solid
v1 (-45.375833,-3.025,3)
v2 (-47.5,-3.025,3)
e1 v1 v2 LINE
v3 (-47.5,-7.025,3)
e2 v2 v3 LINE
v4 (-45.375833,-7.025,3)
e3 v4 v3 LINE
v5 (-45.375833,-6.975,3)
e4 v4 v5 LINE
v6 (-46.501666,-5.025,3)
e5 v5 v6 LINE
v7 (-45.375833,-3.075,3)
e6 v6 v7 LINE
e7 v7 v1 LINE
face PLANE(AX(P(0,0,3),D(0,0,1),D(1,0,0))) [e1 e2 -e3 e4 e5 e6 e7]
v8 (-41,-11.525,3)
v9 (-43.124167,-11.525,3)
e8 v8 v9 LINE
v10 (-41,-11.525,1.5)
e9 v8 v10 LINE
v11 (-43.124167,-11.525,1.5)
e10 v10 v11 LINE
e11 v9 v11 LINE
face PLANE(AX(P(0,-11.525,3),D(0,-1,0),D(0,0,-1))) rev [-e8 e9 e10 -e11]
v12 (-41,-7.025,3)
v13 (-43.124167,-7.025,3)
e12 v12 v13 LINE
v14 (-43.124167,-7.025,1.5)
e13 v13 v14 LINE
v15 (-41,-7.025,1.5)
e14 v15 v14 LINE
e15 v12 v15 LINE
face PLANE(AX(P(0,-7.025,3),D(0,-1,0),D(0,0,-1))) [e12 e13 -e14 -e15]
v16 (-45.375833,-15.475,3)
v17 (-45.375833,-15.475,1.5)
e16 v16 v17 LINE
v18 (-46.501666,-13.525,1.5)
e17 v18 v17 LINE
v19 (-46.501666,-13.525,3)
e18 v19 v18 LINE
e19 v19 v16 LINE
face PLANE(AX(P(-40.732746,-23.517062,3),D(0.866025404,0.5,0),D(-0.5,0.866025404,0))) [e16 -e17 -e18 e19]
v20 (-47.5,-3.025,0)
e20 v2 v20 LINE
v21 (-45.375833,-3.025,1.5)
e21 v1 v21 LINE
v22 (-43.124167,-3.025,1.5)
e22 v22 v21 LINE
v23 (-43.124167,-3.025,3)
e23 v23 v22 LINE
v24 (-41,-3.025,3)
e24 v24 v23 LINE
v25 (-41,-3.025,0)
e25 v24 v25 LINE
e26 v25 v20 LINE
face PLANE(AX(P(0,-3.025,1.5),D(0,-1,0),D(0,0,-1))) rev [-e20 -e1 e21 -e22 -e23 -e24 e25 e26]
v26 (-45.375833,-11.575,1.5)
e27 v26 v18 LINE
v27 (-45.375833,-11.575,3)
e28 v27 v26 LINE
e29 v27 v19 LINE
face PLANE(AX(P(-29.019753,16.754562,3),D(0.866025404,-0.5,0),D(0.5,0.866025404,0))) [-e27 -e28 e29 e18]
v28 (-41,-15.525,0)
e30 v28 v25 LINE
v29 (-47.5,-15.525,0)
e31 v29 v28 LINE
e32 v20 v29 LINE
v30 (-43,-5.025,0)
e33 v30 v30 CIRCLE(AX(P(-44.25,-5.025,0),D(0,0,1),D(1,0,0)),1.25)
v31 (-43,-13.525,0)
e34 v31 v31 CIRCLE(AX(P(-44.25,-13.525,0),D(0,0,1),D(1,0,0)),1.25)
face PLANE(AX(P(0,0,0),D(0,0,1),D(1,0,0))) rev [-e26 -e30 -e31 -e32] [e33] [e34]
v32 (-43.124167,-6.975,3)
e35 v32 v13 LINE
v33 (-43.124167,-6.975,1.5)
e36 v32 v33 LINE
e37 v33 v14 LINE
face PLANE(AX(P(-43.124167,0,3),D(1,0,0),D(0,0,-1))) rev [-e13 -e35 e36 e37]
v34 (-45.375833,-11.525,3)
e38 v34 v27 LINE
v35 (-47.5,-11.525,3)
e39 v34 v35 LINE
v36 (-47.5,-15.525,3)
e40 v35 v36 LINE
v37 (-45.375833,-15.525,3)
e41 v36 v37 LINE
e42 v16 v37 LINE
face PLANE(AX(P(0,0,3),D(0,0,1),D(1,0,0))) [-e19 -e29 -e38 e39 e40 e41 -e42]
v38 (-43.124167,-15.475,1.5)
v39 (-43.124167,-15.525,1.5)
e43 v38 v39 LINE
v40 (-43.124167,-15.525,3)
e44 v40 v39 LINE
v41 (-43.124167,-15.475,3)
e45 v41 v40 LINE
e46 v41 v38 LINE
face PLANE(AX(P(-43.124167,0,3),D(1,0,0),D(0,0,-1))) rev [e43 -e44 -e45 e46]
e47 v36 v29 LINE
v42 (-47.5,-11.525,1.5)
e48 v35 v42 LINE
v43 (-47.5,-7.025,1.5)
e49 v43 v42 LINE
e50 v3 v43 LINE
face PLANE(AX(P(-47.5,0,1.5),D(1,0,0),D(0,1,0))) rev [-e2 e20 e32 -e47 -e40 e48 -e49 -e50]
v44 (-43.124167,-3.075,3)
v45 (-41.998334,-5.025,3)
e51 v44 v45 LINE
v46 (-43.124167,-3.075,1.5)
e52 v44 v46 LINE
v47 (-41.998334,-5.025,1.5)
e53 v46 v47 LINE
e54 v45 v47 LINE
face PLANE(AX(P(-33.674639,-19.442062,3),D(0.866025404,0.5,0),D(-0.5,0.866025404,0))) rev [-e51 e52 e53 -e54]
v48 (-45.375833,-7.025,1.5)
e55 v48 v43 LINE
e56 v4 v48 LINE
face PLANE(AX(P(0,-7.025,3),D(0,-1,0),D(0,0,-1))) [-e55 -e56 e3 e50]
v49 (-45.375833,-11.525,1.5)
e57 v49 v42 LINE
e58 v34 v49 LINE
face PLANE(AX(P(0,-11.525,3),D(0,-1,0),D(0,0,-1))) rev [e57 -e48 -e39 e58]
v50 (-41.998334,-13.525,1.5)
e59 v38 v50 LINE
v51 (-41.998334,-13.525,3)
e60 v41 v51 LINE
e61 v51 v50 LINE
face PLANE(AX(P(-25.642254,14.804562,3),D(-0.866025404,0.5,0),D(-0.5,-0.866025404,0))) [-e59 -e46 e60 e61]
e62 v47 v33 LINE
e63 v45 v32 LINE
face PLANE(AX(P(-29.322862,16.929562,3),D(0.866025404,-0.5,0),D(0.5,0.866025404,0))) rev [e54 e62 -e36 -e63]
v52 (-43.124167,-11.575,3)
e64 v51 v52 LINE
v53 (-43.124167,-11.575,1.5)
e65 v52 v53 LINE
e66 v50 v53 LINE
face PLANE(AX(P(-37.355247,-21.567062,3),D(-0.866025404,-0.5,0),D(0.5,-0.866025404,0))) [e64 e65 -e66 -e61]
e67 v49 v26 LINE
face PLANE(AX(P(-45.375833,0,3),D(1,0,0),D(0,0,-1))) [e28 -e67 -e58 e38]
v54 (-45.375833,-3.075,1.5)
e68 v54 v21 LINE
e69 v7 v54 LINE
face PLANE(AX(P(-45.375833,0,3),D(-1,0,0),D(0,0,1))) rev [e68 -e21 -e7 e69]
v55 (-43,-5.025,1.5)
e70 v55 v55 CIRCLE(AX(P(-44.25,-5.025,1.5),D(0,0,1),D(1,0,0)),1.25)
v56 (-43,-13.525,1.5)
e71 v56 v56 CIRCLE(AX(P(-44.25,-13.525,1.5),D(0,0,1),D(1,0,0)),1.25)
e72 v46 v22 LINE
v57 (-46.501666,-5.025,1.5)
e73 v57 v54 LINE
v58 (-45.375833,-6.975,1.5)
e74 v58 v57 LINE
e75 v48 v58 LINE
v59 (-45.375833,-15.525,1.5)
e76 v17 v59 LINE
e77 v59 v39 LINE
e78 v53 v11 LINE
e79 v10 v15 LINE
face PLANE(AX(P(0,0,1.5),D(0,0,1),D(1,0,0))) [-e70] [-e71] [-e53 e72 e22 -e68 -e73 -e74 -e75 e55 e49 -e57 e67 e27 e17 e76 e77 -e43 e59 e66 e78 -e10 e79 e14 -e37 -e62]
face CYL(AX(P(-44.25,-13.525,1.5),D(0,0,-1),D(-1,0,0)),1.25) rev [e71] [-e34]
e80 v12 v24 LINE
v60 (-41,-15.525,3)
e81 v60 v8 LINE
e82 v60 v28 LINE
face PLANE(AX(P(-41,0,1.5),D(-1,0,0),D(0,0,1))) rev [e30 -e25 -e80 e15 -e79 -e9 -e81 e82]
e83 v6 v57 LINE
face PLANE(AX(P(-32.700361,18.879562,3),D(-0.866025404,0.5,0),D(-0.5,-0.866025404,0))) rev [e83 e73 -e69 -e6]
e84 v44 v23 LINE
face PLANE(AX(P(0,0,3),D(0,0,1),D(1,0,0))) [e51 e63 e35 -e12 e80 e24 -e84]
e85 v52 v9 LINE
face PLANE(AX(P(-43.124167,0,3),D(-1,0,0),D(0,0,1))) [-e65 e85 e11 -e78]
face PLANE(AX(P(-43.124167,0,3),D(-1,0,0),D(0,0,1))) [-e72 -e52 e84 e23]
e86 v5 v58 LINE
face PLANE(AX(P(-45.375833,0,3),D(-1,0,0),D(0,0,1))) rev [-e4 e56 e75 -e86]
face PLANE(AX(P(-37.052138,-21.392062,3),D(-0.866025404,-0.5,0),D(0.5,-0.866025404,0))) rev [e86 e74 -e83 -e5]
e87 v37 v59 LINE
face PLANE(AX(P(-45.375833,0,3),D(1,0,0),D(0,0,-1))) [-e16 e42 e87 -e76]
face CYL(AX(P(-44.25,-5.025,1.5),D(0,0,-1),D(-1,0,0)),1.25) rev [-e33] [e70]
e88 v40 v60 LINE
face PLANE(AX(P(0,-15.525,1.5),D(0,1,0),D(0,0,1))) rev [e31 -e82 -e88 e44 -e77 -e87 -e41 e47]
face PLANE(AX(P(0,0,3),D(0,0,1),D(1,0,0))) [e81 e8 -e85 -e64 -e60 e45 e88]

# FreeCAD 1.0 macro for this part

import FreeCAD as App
import Part
import Sketcher
from FreeCAD import Vector
Q = App.Units.Quantity


def add_polygon(sketch, points):
    """Adds a closed chain of lines whose ends are joined by coincident constraints."""
    first, n = sketch.GeometryCount, len(points)
    for a, b in zip(points, points[1:] + points[:1]):
        sketch.addGeometry(Part.LineSegment(App.Vector(*a, 0), App.Vector(*b, 0)), False)
    for i in range(n):
        sketch.addConstraint(Sketcher.Constraint("Coincident", first + i, 2, first + (i + 1) % n, 1))

doc = App.newDocument("Part")
body = doc.addObject("PartDesign::Body", "Body")

sketch1 = body.newObject("Sketcher::SketchObject", "Sketch")
sketch1.AttachmentSupport = (doc.getObject("XY_Plane"), [""])
sketch1.MapMode = "FlatFace"
add_polygon(sketch1, [(-47.5, -15.5), (-41, -15.5), (-41, -3), (-47.5, -3)])
sketch1.addGeometry(Part.Circle(Vector(-44.2, -13.5, 0), Vector(0, 0, 1), 1.2), False)
sketch1.addGeometry(Part.Circle(Vector(-44.2, -5, 0), Vector(0, 0, 1), 1.2), False)
sketch1.addConstraint([
    Sketcher.Constraint("Horizontal", 0),
    Sketcher.Constraint("Vertical", 1),
    Sketcher.Constraint("Horizontal", 2),
    Sketcher.Constraint("Vertical", 3),
    Sketcher.Constraint("Equal", 4, 5),
    Sketcher.Constraint("Vertical", 4, 3, 5, 3),
    Sketcher.Constraint("Diameter", 4, 2.5),
    Sketcher.Constraint("DistanceX", 0, 1, 0, 2, 6.5),
    Sketcher.Constraint("DistanceY", 1, 1, 1, 2, 12.5),
    Sketcher.Constraint("DistanceX", 0, 2, -1, 1, 41.0),
    Sketcher.Constraint("DistanceY", 0, 2, 4, 3, 2.0),
    Sketcher.Constraint("DistanceY", 5, 3, 1, 2, 2.0),
    Sketcher.Constraint("DistanceX", 4, 3, -1, 1, 44.25),
    Sketcher.Constraint("DistanceY", 4, 3, -1, 1, 13.525),
])
pad1 = body.newObject("PartDesign::Pad", "Pad")
pad1.Profile = sketch1
pad1.Length = 1.5

sketch2 = body.newObject("Sketcher::SketchObject", "Sketch001")
sketch2.AttachmentSupport = (doc.getObject("XY_Plane"), [""])
sketch2.MapMode = "FlatFace"
sketch2.AttachmentOffset = App.Placement(Vector(0, 0, 1.5), App.Rotation())
add_polygon(sketch2, [(-47.5, -3.025), (-47.5, -7.025), (-45.376, -7.025), (-45.376, -6.975), (-46.502, -5.025), (-45.376, -3.075), (-45.376, -3.025)])
add_polygon(sketch2, [(-43.124, -7.025), (-41, -7.025), (-41, -3.025), (-43.124, -3.025), (-43.124, -3.075), (-41.998, -5.025), (-43.124, -6.975)])
add_polygon(sketch2, [(-45.376, -11.575), (-45.376, -11.525), (-47.5, -11.525), (-47.5, -15.525), (-45.376, -15.525), (-45.376, -15.475), (-46.502, -13.525)])
add_polygon(sketch2, [(-41, -11.525), (-43.124, -11.525), (-43.124, -11.575), (-41.998, -13.525), (-43.124, -15.475), (-43.124, -15.525), (-41, -15.525)])
sketch2.addConstraint([
    Sketcher.Constraint("Vertical", 0),
    Sketcher.Constraint("Horizontal", 1),
    Sketcher.Constraint("Vertical", 2),
    Sketcher.Constraint("Vertical", 5),
    Sketcher.Constraint("Horizontal", 6),
    Sketcher.Constraint("Horizontal", 7),
    Sketcher.Constraint("Vertical", 8),
    Sketcher.Constraint("Horizontal", 9),
    Sketcher.Constraint("Vertical", 10),
    Sketcher.Constraint("Vertical", 13),
    Sketcher.Constraint("Vertical", 14),
    Sketcher.Constraint("Horizontal", 15),
    Sketcher.Constraint("Vertical", 16),
    Sketcher.Constraint("Horizontal", 17),
    Sketcher.Constraint("Vertical", 18),
    Sketcher.Constraint("Horizontal", 21),
    Sketcher.Constraint("Vertical", 22),
    Sketcher.Constraint("Vertical", 25),
    Sketcher.Constraint("Horizontal", 26),
    Sketcher.Constraint("Vertical", 27),
    Sketcher.Constraint("Parallel", 3, 11),
    Sketcher.Constraint("Parallel", 4, 12),
    Sketcher.Constraint("Parallel", 11, 19),
    Sketcher.Constraint("Parallel", 12, 20),
    Sketcher.Constraint("Parallel", 19, 23),
    Sketcher.Constraint("Parallel", 20, 24),
    Sketcher.Constraint("Horizontal", 1, 2, 7, 2),
    Sketcher.Constraint("Horizontal", 6, 2, 8, 2),
    Sketcher.Constraint("Horizontal", 4, 2, 10, 2),
    Sketcher.Constraint("Horizontal", 3, 2, 11, 2),
    Sketcher.Constraint("Horizontal", 2, 2, 12, 2),
    Sketcher.Constraint("Horizontal", 15, 2, 21, 2),
    Sketcher.Constraint("Horizontal", 20, 2, 22, 2),
    Sketcher.Constraint("Horizontal", 19, 2, 23, 2),
    Sketcher.Constraint("Horizontal", 18, 2, 24, 2),
    Sketcher.Constraint("Horizontal", 17, 2, 25, 2),
    Sketcher.Constraint("Vertical", 2, 2, 4, 2),
    Sketcher.Constraint("Vertical", 10, 2, 12, 2),
    Sketcher.Constraint("Vertical", 5, 2, 14, 2),
    Sketcher.Constraint("Vertical", 6, 2, 15, 2),
    Sketcher.Constraint("Vertical", 14, 2, 17, 2),
    Sketcher.Constraint("Vertical", 3, 2, 19, 2),
    Sketcher.Constraint("Vertical", 13, 2, 21, 2),
    Sketcher.Constraint("Vertical", 8, 2, 26, 2),
    Sketcher.Constraint("Equal", 6, 7),
    Sketcher.Constraint("Equal", 2, 5),
    Sketcher.Constraint("Equal", 13, 14),
    Sketcher.Constraint("Equal", 8, 16),
    Sketcher.Constraint("DistanceY", 0, 2, 0, 1, 4.0),
    Sketcher.Constraint("Angle", 3, Q("120 deg")),
    Sketcher.Constraint("DistanceX", 7, 2, -1, 1, 41.0),
    Sketcher.Constraint("DistanceY", 2, 1, 2, 2, 0.05),
    Sketcher.Constraint("DistanceX", 0, 2, -1, 1, 47.5),
    Sketcher.Constraint("DistanceY", 14, 2, 1, 2, 4.5),
    Sketcher.Constraint("DistanceY", 0, 2, -1, 1, 7.025),
    Sketcher.Constraint("DistanceX", 3, 2, 9, 2, 3.377499),
])
pad2 = body.newObject("PartDesign::Pad", "Pad001")
pad2.Profile = sketch2
pad2.Length = 1.5

doc.recompute()
